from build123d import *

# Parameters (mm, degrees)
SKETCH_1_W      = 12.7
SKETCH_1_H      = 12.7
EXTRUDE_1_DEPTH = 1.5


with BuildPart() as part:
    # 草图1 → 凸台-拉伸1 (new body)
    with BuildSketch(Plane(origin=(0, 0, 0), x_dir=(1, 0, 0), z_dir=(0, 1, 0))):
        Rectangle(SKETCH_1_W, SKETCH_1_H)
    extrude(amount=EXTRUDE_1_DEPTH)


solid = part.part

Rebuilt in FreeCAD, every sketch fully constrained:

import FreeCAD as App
import Part
import Sketcher
Q = App.Units.Quantity

doc = App.newDocument("Part")
body = doc.addObject("PartDesign::Body", "Body")

# Sketch on XZ plane
sketch1 = doc.addObject("Sketcher::SketchObject", "Sketch")
body.addObject(sketch1)
sketch1.AttachmentSupport = (doc.XZ_Plane, [""])
sketch1.MapMode = "FlatFace"
sketch1.addGeometry(Part.LineSegment(App.Vector(-6, -6, 0), App.Vector(-6, 6, 0)), False)
sketch1.addGeometry(Part.LineSegment(App.Vector(-6, 6, 0), App.Vector(6, 6, 0)), False)
sketch1.addGeometry(Part.LineSegment(App.Vector(6, 6, 0), App.Vector(6, -6, 0)), False)
sketch1.addGeometry(Part.LineSegment(App.Vector(6, -6, 0), App.Vector(-6, -6, 0)), False)
sketch1.addConstraint(Sketcher.Constraint("Coincident", 0, 2, 1, 1))
sketch1.addConstraint(Sketcher.Constraint("Coincident", 1, 2, 2, 1))
sketch1.addConstraint(Sketcher.Constraint("Coincident", 2, 2, 3, 1))
sketch1.addConstraint(Sketcher.Constraint("Coincident", 3, 2, 0, 1))
sketch1.addConstraint(Sketcher.Constraint("Vertical", 0))
sketch1.addConstraint(Sketcher.Constraint("Horizontal", 1))
sketch1.addConstraint(Sketcher.Constraint("Vertical", 2))
sketch1.addConstraint(Sketcher.Constraint("Horizontal", 3))
sketch1.addConstraint(Sketcher.Constraint("Symmetric", 0, 2, 2, 2, -1, 1))
sketch1.addConstraint(Sketcher.Constraint("Equal", 3, 0))
sketch1.addConstraint(Sketcher.Constraint("DistanceX", 1, 1, 1, 2, Q("12.7 mm")))
pad1 = doc.addObject("PartDesign::Pad", "Pad")
body.addObject(pad1)
pad1.Profile = sketch1
pad1.Length = 1.5
pad1.Reversed = True

doc.recompute()
